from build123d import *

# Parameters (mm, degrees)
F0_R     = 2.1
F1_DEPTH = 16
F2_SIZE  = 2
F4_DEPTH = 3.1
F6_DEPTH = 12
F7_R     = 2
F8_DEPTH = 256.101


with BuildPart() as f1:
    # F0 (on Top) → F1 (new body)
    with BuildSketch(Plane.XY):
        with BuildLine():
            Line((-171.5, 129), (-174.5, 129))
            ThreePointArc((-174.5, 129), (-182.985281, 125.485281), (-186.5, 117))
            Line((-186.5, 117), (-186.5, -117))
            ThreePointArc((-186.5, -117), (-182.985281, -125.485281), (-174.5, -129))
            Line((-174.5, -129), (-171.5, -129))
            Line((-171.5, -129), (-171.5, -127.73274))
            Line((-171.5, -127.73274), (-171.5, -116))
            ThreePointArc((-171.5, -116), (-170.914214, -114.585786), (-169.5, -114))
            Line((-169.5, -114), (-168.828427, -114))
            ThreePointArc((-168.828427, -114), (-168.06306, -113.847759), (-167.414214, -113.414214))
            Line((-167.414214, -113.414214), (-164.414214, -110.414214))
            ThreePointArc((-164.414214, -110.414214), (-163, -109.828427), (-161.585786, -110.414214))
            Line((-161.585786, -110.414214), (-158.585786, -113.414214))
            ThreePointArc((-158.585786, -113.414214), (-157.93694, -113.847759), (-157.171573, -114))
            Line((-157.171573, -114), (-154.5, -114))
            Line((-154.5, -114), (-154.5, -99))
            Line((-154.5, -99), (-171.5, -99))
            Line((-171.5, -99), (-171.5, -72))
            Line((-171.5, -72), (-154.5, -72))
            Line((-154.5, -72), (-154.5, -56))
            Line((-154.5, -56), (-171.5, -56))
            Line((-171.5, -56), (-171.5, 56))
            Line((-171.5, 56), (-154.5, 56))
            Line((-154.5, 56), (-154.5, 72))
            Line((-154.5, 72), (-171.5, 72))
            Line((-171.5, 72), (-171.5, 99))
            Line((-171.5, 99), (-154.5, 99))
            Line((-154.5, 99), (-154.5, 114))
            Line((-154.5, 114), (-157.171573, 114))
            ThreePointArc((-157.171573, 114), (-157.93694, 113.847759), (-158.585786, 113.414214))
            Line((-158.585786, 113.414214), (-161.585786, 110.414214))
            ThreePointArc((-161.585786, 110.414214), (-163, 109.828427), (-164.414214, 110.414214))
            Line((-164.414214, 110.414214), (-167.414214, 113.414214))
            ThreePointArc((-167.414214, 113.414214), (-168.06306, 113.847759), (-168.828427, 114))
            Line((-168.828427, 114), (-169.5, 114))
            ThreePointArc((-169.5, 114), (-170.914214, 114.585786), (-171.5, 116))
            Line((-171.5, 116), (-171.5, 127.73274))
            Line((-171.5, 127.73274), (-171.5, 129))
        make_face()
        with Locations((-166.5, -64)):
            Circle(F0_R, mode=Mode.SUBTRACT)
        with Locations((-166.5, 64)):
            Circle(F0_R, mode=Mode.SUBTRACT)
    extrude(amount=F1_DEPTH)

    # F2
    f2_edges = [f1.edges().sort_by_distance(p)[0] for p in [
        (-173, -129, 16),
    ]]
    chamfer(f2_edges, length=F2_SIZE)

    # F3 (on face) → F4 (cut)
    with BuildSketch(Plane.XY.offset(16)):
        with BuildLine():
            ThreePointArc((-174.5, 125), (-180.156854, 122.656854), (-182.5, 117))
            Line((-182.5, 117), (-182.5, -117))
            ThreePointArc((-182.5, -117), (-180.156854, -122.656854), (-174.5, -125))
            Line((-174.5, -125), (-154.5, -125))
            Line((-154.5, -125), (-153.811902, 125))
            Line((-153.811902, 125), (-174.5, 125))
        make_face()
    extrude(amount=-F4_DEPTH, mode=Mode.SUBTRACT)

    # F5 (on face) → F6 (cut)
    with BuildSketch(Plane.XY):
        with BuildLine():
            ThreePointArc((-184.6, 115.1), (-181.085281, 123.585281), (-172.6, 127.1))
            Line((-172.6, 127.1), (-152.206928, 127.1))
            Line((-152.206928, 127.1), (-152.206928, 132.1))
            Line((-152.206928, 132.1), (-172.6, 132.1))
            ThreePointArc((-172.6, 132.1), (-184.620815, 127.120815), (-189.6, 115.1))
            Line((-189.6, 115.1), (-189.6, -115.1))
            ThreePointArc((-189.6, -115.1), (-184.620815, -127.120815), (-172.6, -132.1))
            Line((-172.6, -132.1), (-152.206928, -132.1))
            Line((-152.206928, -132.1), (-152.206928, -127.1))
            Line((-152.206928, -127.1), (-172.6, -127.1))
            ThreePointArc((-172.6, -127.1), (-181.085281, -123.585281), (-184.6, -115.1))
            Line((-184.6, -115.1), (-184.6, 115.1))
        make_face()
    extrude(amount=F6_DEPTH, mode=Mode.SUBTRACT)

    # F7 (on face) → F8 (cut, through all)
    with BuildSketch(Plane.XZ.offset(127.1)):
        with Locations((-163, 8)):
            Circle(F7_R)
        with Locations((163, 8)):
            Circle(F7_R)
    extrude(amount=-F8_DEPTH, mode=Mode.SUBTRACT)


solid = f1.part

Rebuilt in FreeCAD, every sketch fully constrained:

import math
import FreeCAD as App
import Part
import Sketcher


def edges_at(feature, points):
    """Names of the edges that pass closest to the given points."""
    edges = feature.Shape.Edges
    near = lambda p: min(range(len(edges)), key=lambda i: edges[i].distToShape(Part.Vertex(*p))[0])
    return sorted({f"Edge{near(p) + 1}" for p in points})

doc = App.newDocument("Part")
body = doc.addObject("PartDesign::Body", "Body")

sketch1 = body.newObject("Sketcher::SketchObject", "Sketch")
sketch1.AttachmentSupport = (doc.getObject("XY_Plane"), [""])
sketch1.MapMode = "FlatFace"
sketch1.addGeometry([
    Part.LineSegment(App.Vector(-171.5, 129, 0), App.Vector(-174.5, 129, 0)),
    Part.ArcOfCircle(Part.Circle(App.Vector(-174.5, 117, 0), App.Vector(0, 0, 1), 12), math.radians(90), math.radians(180)),
    Part.LineSegment(App.Vector(-186.5, 117, 0), App.Vector(-186.5, -117, 0)),
    Part.ArcOfCircle(Part.Circle(App.Vector(-174.5, -117, 0), App.Vector(0, 0, 1), 12), math.radians(-180), math.radians(-90)),
    Part.LineSegment(App.Vector(-174.5, -129, 0), App.Vector(-171.5, -129, 0)),
    Part.LineSegment(App.Vector(-171.5, -129, 0), App.Vector(-171.5, -116, 0)),
    Part.ArcOfCircle(Part.Circle(App.Vector(-169.5, -116, 0), App.Vector(0, 0, 1), 2), math.radians(90), math.radians(180)),
    Part.LineSegment(App.Vector(-169.5, -114, 0), App.Vector(-168.8, -114, 0)),
    Part.ArcOfCircle(Part.Circle(App.Vector(-168.8, -112, 0), App.Vector(0, 0, 1), 2), math.radians(-90), math.radians(-45)),
    Part.LineSegment(App.Vector(-167.4, -113.4, 0), App.Vector(-164.4, -110.4, 0)),
    Part.ArcOfCircle(Part.Circle(App.Vector(-163, -111.8, 0), App.Vector(0, 0, 1), 2), math.radians(45), math.radians(135)),
    Part.LineSegment(App.Vector(-161.6, -110.4, 0), App.Vector(-158.6, -113.4, 0)),
    Part.ArcOfCircle(Part.Circle(App.Vector(-157.2, -112, 0), App.Vector(0, 0, 1), 2), math.radians(-135), math.radians(-90)),
    Part.LineSegment(App.Vector(-157.2, -114, 0), App.Vector(-154.5, -114, 0)),
    Part.LineSegment(App.Vector(-154.5, -114, 0), App.Vector(-154.5, -99, 0)),
    Part.LineSegment(App.Vector(-154.5, -99, 0), App.Vector(-171.5, -99, 0)),
    Part.LineSegment(App.Vector(-171.5, -99, 0), App.Vector(-171.5, -72, 0)),
    Part.LineSegment(App.Vector(-171.5, -72, 0), App.Vector(-154.5, -72, 0)),
    Part.LineSegment(App.Vector(-154.5, -72, 0), App.Vector(-154.5, -56, 0)),
    Part.LineSegment(App.Vector(-154.5, -56, 0), App.Vector(-171.5, -56, 0)),
    Part.LineSegment(App.Vector(-171.5, -56, 0), App.Vector(-171.5, 56, 0)),
    Part.LineSegment(App.Vector(-171.5, 56, 0), App.Vector(-154.5, 56, 0)),
    Part.LineSegment(App.Vector(-154.5, 56, 0), App.Vector(-154.5, 72, 0)),
    Part.LineSegment(App.Vector(-154.5, 72, 0), App.Vector(-171.5, 72, 0)),
    Part.LineSegment(App.Vector(-171.5, 72, 0), App.Vector(-171.5, 99, 0)),
    Part.LineSegment(App.Vector(-171.5, 99, 0), App.Vector(-154.5, 99, 0)),
    Part.LineSegment(App.Vector(-154.5, 99, 0), App.Vector(-154.5, 114, 0)),
    Part.LineSegment(App.Vector(-154.5, 114, 0), App.Vector(-157.2, 114, 0)),
    Part.ArcOfCircle(Part.Circle(App.Vector(-157.2, 112, 0), App.Vector(0, 0, 1), 2), math.radians(90), math.radians(135)),
    Part.LineSegment(App.Vector(-158.6, 113.4, 0), App.Vector(-161.6, 110.4, 0)),
    Part.ArcOfCircle(Part.Circle(App.Vector(-163, 111.8, 0), App.Vector(0, 0, 1), 2), math.radians(-135), math.radians(-45)),
    Part.LineSegment(App.Vector(-164.4, 110.4, 0), App.Vector(-167.4, 113.4, 0)),
    Part.ArcOfCircle(Part.Circle(App.Vector(-168.8, 112, 0), App.Vector(0, 0, 1), 2), math.radians(45), math.radians(90)),
    Part.LineSegment(App.Vector(-168.8, 114, 0), App.Vector(-169.5, 114, 0)),
    Part.ArcOfCircle(Part.Circle(App.Vector(-169.5, 116, 0), App.Vector(0, 0, 1), 2), math.radians(180), math.radians(270)),
    Part.LineSegment(App.Vector(-171.5, 116, 0), App.Vector(-171.5, 129, 0)),
    Part.Circle(App.Vector(-166.5, -64, 0), App.Vector(0, 0, 1), 2.1),
    Part.Circle(App.Vector(-166.5, 64, 0), App.Vector(0, 0, 1), 2.1),
], False)
sketch1.addConstraint([
    Sketcher.Constraint("Tangent", 0, 2, 1, 1),
    Sketcher.Constraint("Tangent", 1, 2, 2, 1),
    Sketcher.Constraint("Tangent", 2, 2, 3, 1),
    Sketcher.Constraint("Tangent", 3, 2, 4, 1),
    Sketcher.Constraint("Coincident", 4, 2, 5, 1),
    Sketcher.Constraint("Tangent", 5, 2, 6, 2),
    Sketcher.Constraint("Tangent", 6, 1, 7, 1),
    Sketcher.Constraint("Tangent", 7, 2, 8, 1),
    Sketcher.Constraint("Tangent", 8, 2, 9, 1),
    Sketcher.Constraint("Tangent", 9, 2, 10, 2),
    Sketcher.Constraint("Tangent", 10, 1, 11, 1),
    Sketcher.Constraint("Tangent", 11, 2, 12, 1),
    Sketcher.Constraint("Tangent", 12, 2, 13, 1),
    Sketcher.Constraint("Coincident", 13, 2, 14, 1),
    Sketcher.Constraint("Coincident", 14, 2, 15, 1),
    Sketcher.Constraint("Coincident", 15, 2, 16, 1),
    Sketcher.Constraint("Coincident", 16, 2, 17, 1),
    Sketcher.Constraint("Coincident", 17, 2, 18, 1),
    Sketcher.Constraint("Coincident", 18, 2, 19, 1),
    Sketcher.Constraint("Coincident", 19, 2, 20, 1),
    Sketcher.Constraint("Coincident", 20, 2, 21, 1),
    Sketcher.Constraint("Coincident", 21, 2, 22, 1),
    Sketcher.Constraint("Coincident", 22, 2, 23, 1),
    Sketcher.Constraint("Coincident", 23, 2, 24, 1),
    Sketcher.Constraint("Coincident", 24, 2, 25, 1),
    Sketcher.Constraint("Coincident", 25, 2, 26, 1),
    Sketcher.Constraint("Coincident", 26, 2, 27, 1),
    Sketcher.Constraint("Tangent", 27, 2, 28, 1),
    Sketcher.Constraint("Tangent", 28, 2, 29, 1),
    Sketcher.Constraint("Tangent", 29, 2, 30, 2),
    Sketcher.Constraint("Tangent", 30, 1, 31, 1),
    Sketcher.Constraint("Tangent", 31, 2, 32, 1),
    Sketcher.Constraint("Tangent", 32, 2, 33, 1),
    Sketcher.Constraint("Tangent", 33, 2, 34, 2),
    Sketcher.Constraint("Tangent", 34, 1, 35, 1),
    Sketcher.Constraint("Coincident", 35, 2, 0, 1),
    Sketcher.Constraint("Horizontal", 0),
    Sketcher.Constraint("Vertical", 2),
    Sketcher.Constraint("Horizontal", 4),
    Sketcher.Constraint("Vertical", 5),
    Sketcher.Constraint("Horizontal", 7),
    Sketcher.Constraint("Horizontal", 13),
    Sketcher.Constraint("Vertical", 14),
    Sketcher.Constraint("Horizontal", 15),
    Sketcher.Constraint("Vertical", 16),
    Sketcher.Constraint("Horizontal", 17),
    Sketcher.Constraint("Vertical", 18),
    Sketcher.Constraint("Horizontal", 19),
    Sketcher.Constraint("Vertical", 20),
    Sketcher.Constraint("Horizontal", 21),
    Sketcher.Constraint("Vertical", 22),
    Sketcher.Constraint("Horizontal", 23),
    Sketcher.Constraint("Vertical", 24),
    Sketcher.Constraint("Horizontal", 25),
    Sketcher.Constraint("Vertical", 26),
    Sketcher.Constraint("Horizontal", 27),
    Sketcher.Constraint("Horizontal", 33),
    Sketcher.Constraint("Vertical", 35),
    Sketcher.Constraint("Equal", 1, 3),
    Sketcher.Constraint("Equal", 6, 8),
    Sketcher.Constraint("Equal", 8, 10),
    Sketcher.Constraint("Equal", 10, 12),
    Sketcher.Constraint("Equal", 12, 28),
    Sketcher.Constraint("Equal", 28, 30),
    Sketcher.Constraint("Equal", 30, 32),
    Sketcher.Constraint("Equal", 32, 34),
    Sketcher.Constraint("Equal", 36, 37),
    Sketcher.Constraint("Symmetric", 12, 3, 28, 3, -1),
    Sketcher.Constraint("Symmetric", 10, 3, 30, 3, -1),
    Sketcher.Constraint("Symmetric", 8, 3, 32, 3, -1),
    Sketcher.Constraint("Symmetric", 36, 3, 37, 3, -1),
    Sketcher.Constraint("Symmetric", 18, 2, 21, 2, -1),
    Sketcher.Constraint("Symmetric", 16, 2, 23, 2, -1),
    Sketcher.Constraint("Symmetric", 14, 2, 25, 2, -1),
    Sketcher.Constraint("Symmetric", 4, 2, 35, 2, -1),
    Sketcher.Constraint("Perpendicular", 9, 11),
    Sketcher.Constraint("Perpendicular", 11, 29),
    Sketcher.Constraint("Horizontal", 8, 3, 12, 3),
    Sketcher.Constraint("Vertical", 5, 2, 15, 2),
    Sketcher.Constraint("Vertical", 14, 2, 17, 2),
    Sketcher.Constraint("Vertical", 16, 2, 19, 2),
    Sketcher.Constraint("Radius", 1, 12.000001),
    Sketcher.Constraint("Radius", 6, 1.999999),
    Sketcher.Constraint("Diameter", 36, 4.2),
    Sketcher.Constraint("DistanceX", 0, 2, 0, 1, 3.0),
    Sketcher.Constraint("DistanceX", 15, 2, 15, 1, 17.0),
    Sketcher.Constraint("DistanceY", 2, 2, 2, 1, 234.0),
    Sketcher.Constraint("DistanceY", 5, 1, 5, 2, 13.0),
    Sketcher.Constraint("DistanceY", 14, 1, 14, 2, 15.0),
    Sketcher.Constraint("DistanceY", 16, 1, 16, 2, 27.0),
    Sketcher.Constraint("DistanceY", 18, 1, 18, 2, 16.0),
    Sketcher.Constraint("DistanceX", 10, 3, -1, 1, 163.0),
    Sketcher.Constraint("DistanceY", 36, 3, -1, 1, 64.0),
    Sketcher.Constraint("DistanceX", 6, 3, 36, 3, 3.000001),
    Sketcher.Constraint("DistanceX", 8, 2, 9, 2, 3.0),
    Sketcher.Constraint("DistanceX", 1, 3, -1, 1, 174.499999),
])
pad1 = body.newObject("PartDesign::Pad", "Pad")
pad1.Profile = sketch1
pad1.Length = 16
doc.recompute()

chamfer = body.newObject("PartDesign::Chamfer", "Chamfer")
chamfer.Base = (pad1, edges_at(pad1, [(-173, -129, 16)]))
chamfer.Size = 2

sketch2 = body.newObject("Sketcher::SketchObject", "Sketch001")
sketch2.AttachmentSupport = (doc.getObject("XY_Plane"), [""])
sketch2.MapMode = "FlatFace"
sketch2.AttachmentOffset = App.Placement(App.Vector(0, 0, 16), App.Rotation())
sketch2.addGeometry([
    Part.ArcOfCircle(Part.Circle(App.Vector(-174, 117, 0), App.Vector(0, 0, 1), 8), math.radians(90), math.radians(180)),
    Part.LineSegment(App.Vector(-182, 117, 0), App.Vector(-182, -117, 0)),
    Part.ArcOfCircle(Part.Circle(App.Vector(-174, -117, 0), App.Vector(0, 0, 1), 8), math.radians(-180), math.radians(-90)),
    Part.LineSegment(App.Vector(-174, -125, 0), App.Vector(-154, -125, 0)),
    Part.LineSegment(App.Vector(-154, -125, 0), App.Vector(-154, 125, 0)),
    Part.LineSegment(App.Vector(-154, 125, 0), App.Vector(-174, 125, 0)),
], False)
sketch2.addConstraint([
    Sketcher.Constraint("Tangent", 0, 2, 1, 1),
    Sketcher.Constraint("Tangent", 1, 2, 2, 1),
    Sketcher.Constraint("Tangent", 2, 2, 3, 1),
    Sketcher.Constraint("Coincident", 3, 2, 4, 1),
    Sketcher.Constraint("Coincident", 4, 2, 5, 1),
    Sketcher.Constraint("Tangent", 5, 2, 0, 1),
    Sketcher.Constraint("Vertical", 1),
    Sketcher.Constraint("Horizontal", 3),
    Sketcher.Constraint("Horizontal", 5),
    Sketcher.Constraint("Equal", 0, 2),
    Sketcher.Constraint("Radius", 0, 8.000001),
    Sketcher.Constraint("DistanceX", 3, 1, 3, 2, 20.0),
    Sketcher.Constraint("DistanceY", 1, 2, 1, 1, 234.0),
    Sketcher.Constraint("DistanceY", -1, 1, 0, 3, 116.999999),
    Sketcher.Constraint("DistanceX", 0, 3, -1, 1, 174.499999),
    Sketcher.Constraint("DistanceX", 4, 2, -1, 1, 153.811902),
])
pocket1 = body.newObject("PartDesign::Pocket", "Pocket")
pocket1.Profile = sketch2
pocket1.Length = 3.1

sketch3 = body.newObject("Sketcher::SketchObject", "Sketch002")
sketch3.AttachmentSupport = (doc.getObject("XY_Plane"), [""])
sketch3.MapMode = "FlatFace"
sketch3.addGeometry([
    Part.ArcOfCircle(Part.Circle(App.Vector(-173, 115, 0), App.Vector(0, 0, 1), 12), math.radians(90), math.radians(180)),
    Part.LineSegment(App.Vector(-173, 127, 0), App.Vector(-152, 127, 0)),
    Part.LineSegment(App.Vector(-152, 127, 0), App.Vector(-152, 132, 0)),
    Part.LineSegment(App.Vector(-152, 132, 0), App.Vector(-173, 132, 0)),
    Part.ArcOfCircle(Part.Circle(App.Vector(-173, 115, 0), App.Vector(0, 0, 1), 17), math.radians(90), math.radians(180)),
    Part.LineSegment(App.Vector(-190, 115, 0), App.Vector(-190, -115, 0)),
    Part.ArcOfCircle(Part.Circle(App.Vector(-173, -115, 0), App.Vector(0, 0, 1), 17), math.radians(-180), math.radians(-90)),
    Part.LineSegment(App.Vector(-173, -132, 0), App.Vector(-152, -132, 0)),
    Part.LineSegment(App.Vector(-152, -132, 0), App.Vector(-152, -127, 0)),
    Part.LineSegment(App.Vector(-152, -127, 0), App.Vector(-173, -127, 0)),
    Part.ArcOfCircle(Part.Circle(App.Vector(-173, -115, 0), App.Vector(0, 0, 1), 12), math.radians(-180), math.radians(-90)),
    Part.LineSegment(App.Vector(-185, -115, 0), App.Vector(-185, 115, 0)),
], False)
sketch3.addConstraint([
    Sketcher.Constraint("Tangent", 0, 1, 1, 1),
    Sketcher.Constraint("Coincident", 1, 2, 2, 1),
    Sketcher.Constraint("Coincident", 2, 2, 3, 1),
    Sketcher.Constraint("Tangent", 3, 2, 4, 1),
    Sketcher.Constraint("Tangent", 4, 2, 5, 1),
    Sketcher.Constraint("Tangent", 5, 2, 6, 1),
    Sketcher.Constraint("Tangent", 6, 2, 7, 1),
    Sketcher.Constraint("Coincident", 7, 2, 8, 1),
    Sketcher.Constraint("Coincident", 8, 2, 9, 1),
    Sketcher.Constraint("Tangent", 9, 2, 10, 2),
    Sketcher.Constraint("Tangent", 10, 1, 11, 1),
    Sketcher.Constraint("Tangent", 11, 2, 0, 2),
    Sketcher.Constraint("Horizontal", 1),
    Sketcher.Constraint("Vertical", 2),
    Sketcher.Constraint("Horizontal", 3),
    Sketcher.Constraint("Vertical", 5),
    Sketcher.Constraint("Horizontal", 7),
    Sketcher.Constraint("Vertical", 8),
    Sketcher.Constraint("Horizontal", 9),
    Sketcher.Constraint("Vertical", 11),
    Sketcher.Constraint("Coincident", 4, 3, 0, 3),
    Sketcher.Constraint("Coincident", 10, 3, 6, 3),
    Sketcher.Constraint("Equal", 4, 6),
    Sketcher.Constraint("Symmetric", 2, 2, 7, 2, -1),
    Sketcher.Constraint("Radius", 0, 12.000001),
    Sketcher.Constraint("Radius", 4, 17.000001),
    Sketcher.Constraint("DistanceY", 5, 2, 5, 1, 230.2),
    Sketcher.Constraint("DistanceX", 0, 3, -1, 1, 172.599999),
    Sketcher.Constraint("DistanceX", 1, 1, 1, 2, 20.393072),
])
pocket2 = body.newObject("PartDesign::Pocket", "Pocket001")
pocket2.Profile = sketch3
pocket2.Length = 12
pocket2.Reversed = True

sketch4 = body.newObject("Sketcher::SketchObject", "Sketch003")
sketch4.AttachmentSupport = (doc.getObject("XZ_Plane"), [""])
sketch4.MapMode = "FlatFace"
sketch4.AttachmentOffset = App.Placement(App.Vector(0, 0, 127.1), App.Rotation())
sketch4.addGeometry([
    Part.Circle(App.Vector(-163, 8, 0), App.Vector(0, 0, 1), 2),
    Part.Circle(App.Vector(163, 8, 0), App.Vector(0, 0, 1), 2),
], False)
sketch4.addConstraint([
    Sketcher.Constraint("Equal", 0, 1),
    Sketcher.Constraint("Symmetric", 0, 3, 1, 3, -2),
    Sketcher.Constraint("Diameter", 0, 4.0),
    Sketcher.Constraint("DistanceX", 0, 3, -1, 1, 163.0),
    Sketcher.Constraint("DistanceY", -1, 1, 0, 3, 8.0),
])
pocket3 = body.newObject("PartDesign::Pocket", "Pocket002")
pocket3.Profile = sketch4
pocket3.Type = "ThroughAll"

doc.recompute()
